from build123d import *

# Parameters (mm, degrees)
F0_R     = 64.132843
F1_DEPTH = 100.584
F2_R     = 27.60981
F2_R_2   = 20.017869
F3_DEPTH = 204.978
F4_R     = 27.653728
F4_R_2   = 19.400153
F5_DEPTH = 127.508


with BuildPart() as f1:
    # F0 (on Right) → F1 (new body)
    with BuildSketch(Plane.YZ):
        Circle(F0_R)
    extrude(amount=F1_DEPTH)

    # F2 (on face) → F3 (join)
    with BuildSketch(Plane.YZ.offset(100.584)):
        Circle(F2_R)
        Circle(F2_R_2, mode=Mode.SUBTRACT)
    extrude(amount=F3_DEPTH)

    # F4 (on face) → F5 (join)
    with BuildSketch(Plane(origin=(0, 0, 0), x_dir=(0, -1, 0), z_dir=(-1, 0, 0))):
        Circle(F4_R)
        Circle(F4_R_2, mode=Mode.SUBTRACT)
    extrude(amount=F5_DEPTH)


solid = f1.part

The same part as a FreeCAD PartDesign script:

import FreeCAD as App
import Part
import Sketcher

V = App.Vector
Q = App.Units.Quantity

doc = App.newDocument("Part")
body = doc.addObject("PartDesign::Body", "Body")

# Sketch on YZ plane
sketch1 = body.newObject("Sketcher::SketchObject", "Sketch")
sketch1.AttachmentSupport = (doc.getObject("YZ_Plane"), [""])
sketch1.MapMode = "FlatFace"
sketch1.addGeometry(Part.Circle(V(0, 0, 0), V(0, 0, 1), 64), False)
sketch1.addConstraint([
    Sketcher.Constraint("Coincident", 0, 3, -1, 1),
    Sketcher.Constraint("Diameter", 0, 128.265686),
])
pad1 = body.newObject("PartDesign::Pad", "Pad")
pad1.Profile = sketch1
pad1.Length = Q("3.96 in")

# Sketch on YZ plane
sketch2 = body.newObject("Sketcher::SketchObject", "Sketch001")
sketch2.AttachmentSupport = (doc.getObject("YZ_Plane"), [""])
sketch2.MapMode = "FlatFace"
sketch2.AttachmentOffset = App.Placement(V(0, 0, 3.96 * 25.4), App.Rotation())
sketch2.addGeometry([
    Part.Circle(V(0, 0, 0), V(0, 0, 1), 28),
    Part.Circle(V(0, 0, 0), V(0, 0, 1), 20),
], False)
sketch2.addConstraint([
    Sketcher.Constraint("Coincident", 0, 3, -1, 1),
    Sketcher.Constraint("Coincident", 1, 3, -1, 1),
    Sketcher.Constraint("Diameter", 0, 55.21962),
    Sketcher.Constraint("Diameter", 1, 40.035738),
])
pad2 = body.newObject("PartDesign::Pad", "Pad001")
pad2.Profile = sketch2
pad2.Length = Q("8.07 in")

# Sketch on YZ plane
sketch3 = body.newObject("Sketcher::SketchObject", "Sketch002")
sketch3.AttachmentSupport = (doc.getObject("YZ_Plane"), [""])
sketch3.MapMode = "FlatFace"
sketch3.addGeometry([
    Part.Circle(V(0, 0, 0), V(0, 0, 1), 28),
    Part.Circle(V(0, 0, 0), V(0, 0, 1), 19),
], False)
sketch3.addConstraint([
    Sketcher.Constraint("Coincident", 0, 3, -1, 1),
    Sketcher.Constraint("Coincident", 1, 3, -1, 1),
    Sketcher.Constraint("Diameter", 0, 55.307456),
    Sketcher.Constraint("Diameter", 1, 38.800306),
])
pad3 = body.newObject("PartDesign::Pad", "Pad002")
pad3.Profile = sketch3
pad3.Length = Q("5.02 in")
pad3.Reversed = True

doc.recompute()
